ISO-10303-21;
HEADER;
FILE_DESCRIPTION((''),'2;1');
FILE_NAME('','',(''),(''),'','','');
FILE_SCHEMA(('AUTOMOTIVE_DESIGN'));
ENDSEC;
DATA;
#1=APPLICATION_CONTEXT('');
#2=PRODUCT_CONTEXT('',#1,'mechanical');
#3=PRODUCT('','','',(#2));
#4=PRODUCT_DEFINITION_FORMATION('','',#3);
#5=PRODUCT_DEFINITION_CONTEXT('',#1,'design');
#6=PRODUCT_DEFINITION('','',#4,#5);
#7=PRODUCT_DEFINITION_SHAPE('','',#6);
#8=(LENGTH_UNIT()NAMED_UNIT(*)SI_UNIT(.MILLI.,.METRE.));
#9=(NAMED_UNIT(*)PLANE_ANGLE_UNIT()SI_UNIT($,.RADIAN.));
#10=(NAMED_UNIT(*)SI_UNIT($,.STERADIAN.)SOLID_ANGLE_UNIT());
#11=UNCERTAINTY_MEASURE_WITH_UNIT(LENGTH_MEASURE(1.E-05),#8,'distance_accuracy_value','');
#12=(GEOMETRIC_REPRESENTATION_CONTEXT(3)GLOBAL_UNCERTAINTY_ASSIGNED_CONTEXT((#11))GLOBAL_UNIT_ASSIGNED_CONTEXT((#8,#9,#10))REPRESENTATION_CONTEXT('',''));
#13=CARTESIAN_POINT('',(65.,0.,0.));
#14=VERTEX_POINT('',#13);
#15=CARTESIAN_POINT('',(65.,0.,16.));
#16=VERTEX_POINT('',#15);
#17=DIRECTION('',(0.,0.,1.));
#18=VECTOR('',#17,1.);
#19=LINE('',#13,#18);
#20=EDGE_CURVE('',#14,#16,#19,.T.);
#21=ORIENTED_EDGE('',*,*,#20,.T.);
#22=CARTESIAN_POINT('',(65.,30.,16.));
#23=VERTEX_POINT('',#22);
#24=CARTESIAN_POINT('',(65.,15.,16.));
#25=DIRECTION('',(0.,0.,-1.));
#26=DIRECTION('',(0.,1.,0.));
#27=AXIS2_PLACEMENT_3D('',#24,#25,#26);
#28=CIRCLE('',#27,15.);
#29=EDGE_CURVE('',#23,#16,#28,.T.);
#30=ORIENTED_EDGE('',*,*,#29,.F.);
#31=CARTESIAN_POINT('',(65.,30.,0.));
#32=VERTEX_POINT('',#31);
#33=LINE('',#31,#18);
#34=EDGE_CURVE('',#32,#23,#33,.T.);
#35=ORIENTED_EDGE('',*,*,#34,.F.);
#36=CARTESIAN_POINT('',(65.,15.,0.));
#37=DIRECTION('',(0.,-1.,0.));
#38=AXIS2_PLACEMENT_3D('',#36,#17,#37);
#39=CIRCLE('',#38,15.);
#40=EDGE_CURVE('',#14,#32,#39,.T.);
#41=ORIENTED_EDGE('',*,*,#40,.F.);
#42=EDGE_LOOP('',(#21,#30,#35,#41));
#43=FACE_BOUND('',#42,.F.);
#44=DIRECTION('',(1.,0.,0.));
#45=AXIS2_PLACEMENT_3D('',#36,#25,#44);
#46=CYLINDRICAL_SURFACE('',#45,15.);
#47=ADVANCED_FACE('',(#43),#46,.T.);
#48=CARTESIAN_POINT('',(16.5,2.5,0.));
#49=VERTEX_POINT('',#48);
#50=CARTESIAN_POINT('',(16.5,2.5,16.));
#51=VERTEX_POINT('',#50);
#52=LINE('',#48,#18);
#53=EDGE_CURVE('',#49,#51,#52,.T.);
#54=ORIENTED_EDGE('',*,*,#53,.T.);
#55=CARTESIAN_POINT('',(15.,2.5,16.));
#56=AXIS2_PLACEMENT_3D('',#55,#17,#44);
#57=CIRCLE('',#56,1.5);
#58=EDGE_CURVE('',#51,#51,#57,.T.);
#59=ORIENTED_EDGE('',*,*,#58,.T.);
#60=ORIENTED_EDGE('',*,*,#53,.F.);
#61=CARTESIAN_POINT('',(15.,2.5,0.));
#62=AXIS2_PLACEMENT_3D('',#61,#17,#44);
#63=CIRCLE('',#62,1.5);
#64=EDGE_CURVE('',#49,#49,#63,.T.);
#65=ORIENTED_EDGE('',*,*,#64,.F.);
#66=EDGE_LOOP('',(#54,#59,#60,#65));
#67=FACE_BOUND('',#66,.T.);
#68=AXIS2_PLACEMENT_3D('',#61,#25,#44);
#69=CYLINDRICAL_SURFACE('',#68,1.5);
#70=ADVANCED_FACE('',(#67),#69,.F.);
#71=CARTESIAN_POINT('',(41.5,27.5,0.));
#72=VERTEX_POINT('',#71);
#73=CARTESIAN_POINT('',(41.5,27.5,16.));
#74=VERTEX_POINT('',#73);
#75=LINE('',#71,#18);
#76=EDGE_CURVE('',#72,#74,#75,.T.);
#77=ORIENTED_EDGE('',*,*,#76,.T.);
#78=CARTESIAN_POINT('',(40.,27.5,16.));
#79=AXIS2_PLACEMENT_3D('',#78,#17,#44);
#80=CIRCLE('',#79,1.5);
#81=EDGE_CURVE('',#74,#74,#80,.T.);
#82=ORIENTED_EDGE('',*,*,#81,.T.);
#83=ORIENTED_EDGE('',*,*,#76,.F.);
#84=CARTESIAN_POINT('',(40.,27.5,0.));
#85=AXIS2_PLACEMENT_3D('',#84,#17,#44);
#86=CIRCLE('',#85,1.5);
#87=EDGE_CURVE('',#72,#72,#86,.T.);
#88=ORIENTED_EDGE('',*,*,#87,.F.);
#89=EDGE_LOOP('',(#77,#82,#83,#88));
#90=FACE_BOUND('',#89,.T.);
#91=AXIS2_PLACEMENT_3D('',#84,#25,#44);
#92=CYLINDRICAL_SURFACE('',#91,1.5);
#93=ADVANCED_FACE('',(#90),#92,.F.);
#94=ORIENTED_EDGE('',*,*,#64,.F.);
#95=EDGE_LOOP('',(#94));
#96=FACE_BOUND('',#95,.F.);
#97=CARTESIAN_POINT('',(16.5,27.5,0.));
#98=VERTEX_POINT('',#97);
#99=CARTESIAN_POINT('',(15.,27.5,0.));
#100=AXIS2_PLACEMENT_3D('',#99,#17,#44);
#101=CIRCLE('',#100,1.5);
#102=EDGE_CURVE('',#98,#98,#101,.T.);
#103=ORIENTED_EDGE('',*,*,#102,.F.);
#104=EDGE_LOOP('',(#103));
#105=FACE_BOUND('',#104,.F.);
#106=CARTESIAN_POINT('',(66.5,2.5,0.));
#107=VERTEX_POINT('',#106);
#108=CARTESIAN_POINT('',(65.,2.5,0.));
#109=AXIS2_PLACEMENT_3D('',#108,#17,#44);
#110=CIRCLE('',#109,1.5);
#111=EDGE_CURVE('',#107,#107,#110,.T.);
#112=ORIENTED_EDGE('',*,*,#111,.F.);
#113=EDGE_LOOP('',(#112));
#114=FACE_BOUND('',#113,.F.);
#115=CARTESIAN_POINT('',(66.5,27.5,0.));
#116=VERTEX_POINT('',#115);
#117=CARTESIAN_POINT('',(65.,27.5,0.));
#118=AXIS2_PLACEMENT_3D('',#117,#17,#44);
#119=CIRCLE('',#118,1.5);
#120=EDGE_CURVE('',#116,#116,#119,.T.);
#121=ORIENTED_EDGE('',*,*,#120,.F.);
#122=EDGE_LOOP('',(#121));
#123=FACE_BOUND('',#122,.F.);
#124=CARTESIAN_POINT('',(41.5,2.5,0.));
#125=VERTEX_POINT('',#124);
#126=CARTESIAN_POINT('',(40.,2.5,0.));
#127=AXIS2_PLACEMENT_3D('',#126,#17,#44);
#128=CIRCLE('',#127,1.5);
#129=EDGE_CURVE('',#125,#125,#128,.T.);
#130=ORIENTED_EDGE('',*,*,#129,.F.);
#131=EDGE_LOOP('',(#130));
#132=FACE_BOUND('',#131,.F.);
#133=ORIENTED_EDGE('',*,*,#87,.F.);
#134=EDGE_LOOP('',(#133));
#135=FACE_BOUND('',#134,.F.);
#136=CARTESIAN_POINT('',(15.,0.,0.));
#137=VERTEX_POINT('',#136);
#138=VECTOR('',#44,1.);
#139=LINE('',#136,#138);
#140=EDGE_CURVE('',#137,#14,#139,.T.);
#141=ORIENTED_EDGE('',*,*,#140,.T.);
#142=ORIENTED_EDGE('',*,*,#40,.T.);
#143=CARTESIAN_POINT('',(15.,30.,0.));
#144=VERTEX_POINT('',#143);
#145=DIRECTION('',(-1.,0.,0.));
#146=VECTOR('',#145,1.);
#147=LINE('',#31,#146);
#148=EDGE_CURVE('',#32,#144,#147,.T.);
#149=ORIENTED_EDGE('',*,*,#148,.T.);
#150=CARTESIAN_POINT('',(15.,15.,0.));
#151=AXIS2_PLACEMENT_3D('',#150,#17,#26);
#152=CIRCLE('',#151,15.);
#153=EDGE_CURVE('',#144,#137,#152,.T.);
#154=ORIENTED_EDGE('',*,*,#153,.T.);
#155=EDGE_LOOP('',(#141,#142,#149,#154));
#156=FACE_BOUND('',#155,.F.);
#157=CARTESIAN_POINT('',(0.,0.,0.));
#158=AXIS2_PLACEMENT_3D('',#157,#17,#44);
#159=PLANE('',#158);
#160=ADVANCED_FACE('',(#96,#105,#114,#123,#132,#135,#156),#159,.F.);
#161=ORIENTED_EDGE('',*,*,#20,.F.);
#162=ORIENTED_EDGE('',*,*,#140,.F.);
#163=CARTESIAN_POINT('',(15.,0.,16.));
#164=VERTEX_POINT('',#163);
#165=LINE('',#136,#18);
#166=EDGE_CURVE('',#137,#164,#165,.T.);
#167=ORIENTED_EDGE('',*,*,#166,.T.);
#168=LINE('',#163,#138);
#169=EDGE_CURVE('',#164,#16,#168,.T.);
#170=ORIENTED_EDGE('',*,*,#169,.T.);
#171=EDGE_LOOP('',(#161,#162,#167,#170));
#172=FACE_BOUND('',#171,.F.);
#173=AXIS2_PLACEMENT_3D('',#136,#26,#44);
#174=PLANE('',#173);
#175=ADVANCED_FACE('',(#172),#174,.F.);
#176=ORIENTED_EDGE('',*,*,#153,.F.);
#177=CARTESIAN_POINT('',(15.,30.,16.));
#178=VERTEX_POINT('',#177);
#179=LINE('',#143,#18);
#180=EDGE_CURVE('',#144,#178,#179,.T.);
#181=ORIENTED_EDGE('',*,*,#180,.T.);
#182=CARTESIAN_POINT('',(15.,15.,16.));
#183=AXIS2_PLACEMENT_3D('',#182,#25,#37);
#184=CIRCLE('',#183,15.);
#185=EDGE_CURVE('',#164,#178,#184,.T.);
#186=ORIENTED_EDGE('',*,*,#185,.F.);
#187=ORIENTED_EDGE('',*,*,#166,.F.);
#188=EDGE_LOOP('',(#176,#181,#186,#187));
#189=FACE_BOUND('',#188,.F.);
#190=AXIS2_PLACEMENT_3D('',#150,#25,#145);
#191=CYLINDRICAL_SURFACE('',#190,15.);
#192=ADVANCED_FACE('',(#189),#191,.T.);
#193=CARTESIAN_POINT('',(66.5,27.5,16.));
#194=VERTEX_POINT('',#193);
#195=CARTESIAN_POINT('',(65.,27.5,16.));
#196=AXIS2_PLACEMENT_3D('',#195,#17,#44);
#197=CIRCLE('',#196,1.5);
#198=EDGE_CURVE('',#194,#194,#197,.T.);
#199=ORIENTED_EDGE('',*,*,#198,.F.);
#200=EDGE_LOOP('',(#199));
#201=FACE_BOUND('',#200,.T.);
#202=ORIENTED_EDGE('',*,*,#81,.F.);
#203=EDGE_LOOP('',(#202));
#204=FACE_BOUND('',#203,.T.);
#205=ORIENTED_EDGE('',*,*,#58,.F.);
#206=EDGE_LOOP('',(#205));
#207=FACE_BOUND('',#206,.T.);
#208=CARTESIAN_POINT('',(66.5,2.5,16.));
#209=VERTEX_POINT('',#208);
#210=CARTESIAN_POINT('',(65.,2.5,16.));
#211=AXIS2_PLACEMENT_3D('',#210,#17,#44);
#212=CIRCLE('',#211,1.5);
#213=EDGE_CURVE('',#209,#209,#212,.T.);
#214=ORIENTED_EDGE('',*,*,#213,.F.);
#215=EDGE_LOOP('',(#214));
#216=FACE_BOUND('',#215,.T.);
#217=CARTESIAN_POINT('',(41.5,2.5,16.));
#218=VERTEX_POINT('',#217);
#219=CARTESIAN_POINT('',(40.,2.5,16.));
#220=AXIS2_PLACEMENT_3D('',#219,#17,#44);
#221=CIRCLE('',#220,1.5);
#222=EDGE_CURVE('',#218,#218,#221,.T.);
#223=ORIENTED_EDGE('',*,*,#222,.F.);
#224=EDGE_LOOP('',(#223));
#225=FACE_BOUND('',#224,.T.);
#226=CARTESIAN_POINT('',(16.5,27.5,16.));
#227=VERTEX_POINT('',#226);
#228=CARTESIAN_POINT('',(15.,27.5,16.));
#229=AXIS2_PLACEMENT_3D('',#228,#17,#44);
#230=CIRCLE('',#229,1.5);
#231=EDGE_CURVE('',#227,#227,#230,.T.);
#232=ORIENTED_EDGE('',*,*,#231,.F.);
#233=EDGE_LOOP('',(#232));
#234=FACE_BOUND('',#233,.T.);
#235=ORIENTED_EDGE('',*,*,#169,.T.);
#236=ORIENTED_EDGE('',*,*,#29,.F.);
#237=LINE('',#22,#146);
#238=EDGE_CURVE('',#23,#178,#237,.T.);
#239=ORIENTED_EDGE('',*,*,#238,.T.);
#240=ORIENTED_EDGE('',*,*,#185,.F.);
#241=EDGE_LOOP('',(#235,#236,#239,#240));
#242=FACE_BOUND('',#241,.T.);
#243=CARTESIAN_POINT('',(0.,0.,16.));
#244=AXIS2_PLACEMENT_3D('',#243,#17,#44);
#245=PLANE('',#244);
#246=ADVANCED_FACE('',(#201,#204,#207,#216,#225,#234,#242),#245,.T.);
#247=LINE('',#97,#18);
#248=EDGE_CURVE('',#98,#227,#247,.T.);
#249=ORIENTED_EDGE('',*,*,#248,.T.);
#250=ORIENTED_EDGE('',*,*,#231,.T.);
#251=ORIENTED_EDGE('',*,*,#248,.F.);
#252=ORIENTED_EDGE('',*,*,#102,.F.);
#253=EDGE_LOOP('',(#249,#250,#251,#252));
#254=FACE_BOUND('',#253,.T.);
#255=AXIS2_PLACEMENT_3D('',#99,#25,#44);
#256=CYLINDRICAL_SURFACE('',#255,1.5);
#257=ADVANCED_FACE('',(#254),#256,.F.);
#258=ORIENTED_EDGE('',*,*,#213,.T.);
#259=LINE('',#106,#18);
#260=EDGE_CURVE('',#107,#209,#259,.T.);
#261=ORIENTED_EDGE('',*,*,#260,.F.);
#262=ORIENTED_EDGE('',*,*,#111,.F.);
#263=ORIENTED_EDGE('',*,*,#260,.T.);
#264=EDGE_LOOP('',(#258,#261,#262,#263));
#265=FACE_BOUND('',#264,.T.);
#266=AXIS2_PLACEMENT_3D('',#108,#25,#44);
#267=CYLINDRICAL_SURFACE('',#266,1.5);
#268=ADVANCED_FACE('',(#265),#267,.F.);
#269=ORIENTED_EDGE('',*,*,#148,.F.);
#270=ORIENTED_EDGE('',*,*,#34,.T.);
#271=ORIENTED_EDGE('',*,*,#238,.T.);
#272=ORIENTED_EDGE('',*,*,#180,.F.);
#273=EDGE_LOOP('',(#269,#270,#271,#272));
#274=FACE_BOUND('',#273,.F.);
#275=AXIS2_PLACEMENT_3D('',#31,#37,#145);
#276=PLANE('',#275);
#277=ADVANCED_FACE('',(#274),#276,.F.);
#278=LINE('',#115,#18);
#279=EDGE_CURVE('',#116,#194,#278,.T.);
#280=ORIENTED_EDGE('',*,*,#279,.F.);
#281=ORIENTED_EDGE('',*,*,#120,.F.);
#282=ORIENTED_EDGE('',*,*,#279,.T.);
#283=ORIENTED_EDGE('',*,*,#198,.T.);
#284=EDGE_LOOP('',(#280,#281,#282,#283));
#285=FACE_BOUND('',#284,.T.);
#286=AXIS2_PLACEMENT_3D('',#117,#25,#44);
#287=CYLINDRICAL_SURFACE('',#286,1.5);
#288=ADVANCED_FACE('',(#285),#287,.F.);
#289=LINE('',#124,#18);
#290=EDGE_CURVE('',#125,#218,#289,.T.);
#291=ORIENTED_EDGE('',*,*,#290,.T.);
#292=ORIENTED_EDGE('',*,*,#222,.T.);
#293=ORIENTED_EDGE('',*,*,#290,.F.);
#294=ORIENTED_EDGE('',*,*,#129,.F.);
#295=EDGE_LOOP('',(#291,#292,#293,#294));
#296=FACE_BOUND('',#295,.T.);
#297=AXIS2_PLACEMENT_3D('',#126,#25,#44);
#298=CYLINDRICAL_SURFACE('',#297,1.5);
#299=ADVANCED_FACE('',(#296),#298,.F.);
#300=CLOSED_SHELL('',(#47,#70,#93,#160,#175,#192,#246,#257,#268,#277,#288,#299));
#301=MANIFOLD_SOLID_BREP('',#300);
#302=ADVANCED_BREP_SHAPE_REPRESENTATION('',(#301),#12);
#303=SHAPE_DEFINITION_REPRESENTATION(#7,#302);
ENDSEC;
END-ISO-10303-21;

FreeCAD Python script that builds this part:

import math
import FreeCAD as App
import Part
import Sketcher
from FreeCAD import Vector


def faces_at(feature, points):
    """Names of the faces that lie closest to the given points."""
    faces = feature.Shape.Faces
    near = lambda p: min(range(len(faces)), key=lambda i: faces[i].distToShape(Part.Vertex(*p))[0])
    return sorted({f"Face{near(p) + 1}" for p in points})

doc = App.newDocument("Part")
body = doc.addObject("PartDesign::Body", "Body")

# Sketch on XY plane
sketch1 = body.newObject("Sketcher::SketchObject", "Sketch")
sketch1.AttachmentSupport = (doc.getObject("XY_Plane"), [""])
sketch1.MapMode = "FlatFace"
sketch1.addGeometry(Part.ArcOfCircle(Part.Circle(Vector(15, 15, 0), Vector(0, 0, 1), 15), math.radians(90), math.radians(270)), False)
sketch1.addGeometry(Part.LineSegment(Vector(15, 0, 0), Vector(65, 0, 0)), False)
sketch1.addGeometry(Part.ArcOfCircle(Part.Circle(Vector(65, 15, 0), Vector(0, 0, 1), 15), math.radians(-90), math.radians(90)), False)
sketch1.addGeometry(Part.LineSegment(Vector(65, 30, 0), Vector(15, 30, 0)), False)
sketch1.addGeometry(Part.Circle(Vector(15, 2.5, 0), Vector(0, 0, 1), 1.5), False)
sketch1.addGeometry(Part.Circle(Vector(40, 2.5, 0), Vector(0, 0, 1), 1.5), False)
sketch1.addGeometry(Part.Circle(Vector(65, 2.5, 0), Vector(0, 0, 1), 1.5), False)
sketch1.addGeometry(Part.Circle(Vector(15, 27.5, 0), Vector(0, 0, 1), 1.5), False)
sketch1.addGeometry(Part.Circle(Vector(40, 27.5, 0), Vector(0, 0, 1), 1.5), False)
sketch1.addGeometry(Part.Circle(Vector(65, 27.5, 0), Vector(0, 0, 1), 1.5), False)
sketch1.addConstraint(Sketcher.Constraint("Tangent", 0, 2, 1, 1))
sketch1.addConstraint(Sketcher.Constraint("Tangent", 1, 2, 2, 1))
sketch1.addConstraint(Sketcher.Constraint("Tangent", 2, 2, 3, 1))
sketch1.addConstraint(Sketcher.Constraint("Tangent", 3, 2, 0, 1))
sketch1.addConstraint(Sketcher.Constraint("Horizontal", 1))
sketch1.addConstraint(Sketcher.Constraint("Horizontal", 3))
sketch1.addConstraint(Sketcher.Constraint("Equal", 4, 5))
sketch1.addConstraint(Sketcher.Constraint("Equal", 5, 6))
sketch1.addConstraint(Sketcher.Constraint("Equal", 6, 7))
sketch1.addConstraint(Sketcher.Constraint("Equal", 7, 8))
sketch1.addConstraint(Sketcher.Constraint("Equal", 8, 9))
sketch1.addConstraint(Sketcher.Constraint("PointOnObject", 0, 2, -1))
sketch1.addConstraint(Sketcher.Constraint("Horizontal", 4, 3, 5, 3))
sketch1.addConstraint(Sketcher.Constraint("Horizontal", 5, 3, 6, 3))
sketch1.addConstraint(Sketcher.Constraint("Horizontal", 7, 3, 8, 3))
sketch1.addConstraint(Sketcher.Constraint("Horizontal", 8, 3, 9, 3))
sketch1.addConstraint(Sketcher.Constraint("Vertical", 0, 3, 4, 3))
sketch1.addConstraint(Sketcher.Constraint("Vertical", 2, 3, 6, 3))
sketch1.addConstraint(Sketcher.Constraint("Vertical", 4, 3, 7, 3))
sketch1.addConstraint(Sketcher.Constraint("Vertical", 5, 3, 8, 3))
sketch1.addConstraint(Sketcher.Constraint("Vertical", 6, 3, 9, 3))
sketch1.addConstraint(Sketcher.Constraint("Diameter", 4, 3.0))
sketch1.addConstraint(Sketcher.Constraint("Radius", 0, 15.0))
sketch1.addConstraint(Sketcher.Constraint("DistanceX", -1, 1, 0, 3, 15.0))
sketch1.addConstraint(Sketcher.Constraint("DistanceX", 4, 3, 5, 3, 25.0))
sketch1.addConstraint(Sketcher.Constraint("DistanceX", 5, 3, 2, 3, 25.0))
sketch1.addConstraint(Sketcher.Constraint("DistanceY", 4, 3, 7, 3, 25.0))
sketch1.addConstraint(Sketcher.Constraint("DistanceY", 4, 3, 0, 3, 12.5))
pad1 = body.newObject("PartDesign::Pad", "Pad")
pad1.Profile = sketch1
pad1.Length = 16
doc.recompute()

thickness = body.newObject("PartDesign::Thickness", "Thickness")
thickness.Base = (pad1, faces_at(pad1, [(23.7, 18.827, 16)]))
thickness.Value = 2
thickness.Reversed = True
thickness.Join = "Intersection"

# Sketch on XY plane
sketch2 = body.newObject("Sketcher::SketchObject", "Sketch001")
sketch2.AttachmentSupport = (doc.getObject("XY_Plane"), [""])
sketch2.MapMode = "FlatFace"
sketch2.addGeometry(Part.Circle(Vector(65, 27.5, 0), Vector(0, 0, 1), 2), False)
sketch2.addGeometry(Part.Circle(Vector(40, 27.5, 0), Vector(0, 0, 1), 2), False)
sketch2.addGeometry(Part.Circle(Vector(15, 27.5, 0), Vector(0, 0, 1), 2), False)
sketch2.addGeometry(Part.Circle(Vector(15, 2.5, 0), Vector(0, 0, 1), 2), False)
sketch2.addGeometry(Part.Circle(Vector(40, 2.5, 0), Vector(0, 0, 1), 2), False)
sketch2.addGeometry(Part.Circle(Vector(65, 2.5, 0), Vector(0, 0, 1), 2), False)
sketch2.addConstraint(Sketcher.Constraint("Equal", 0, 1))
sketch2.addConstraint(Sketcher.Constraint("Equal", 1, 2))
sketch2.addConstraint(Sketcher.Constraint("Equal", 2, 3))
sketch2.addConstraint(Sketcher.Constraint("Equal", 3, 4))
sketch2.addConstraint(Sketcher.Constraint("Equal", 4, 5))
sketch2.addConstraint(Sketcher.Constraint("Horizontal", 0, 3, 1, 3))
sketch2.addConstraint(Sketcher.Constraint("Horizontal", 1, 3, 2, 3))
sketch2.addConstraint(Sketcher.Constraint("Horizontal", 3, 3, 4, 3))
sketch2.addConstraint(Sketcher.Constraint("Horizontal", 4, 3, 5, 3))
sketch2.addConstraint(Sketcher.Constraint("Vertical", 2, 3, 3, 3))
sketch2.addConstraint(Sketcher.Constraint("Vertical", 1, 3, 4, 3))
sketch2.addConstraint(Sketcher.Constraint("Vertical", 0, 3, 5, 3))
sketch2.addConstraint(Sketcher.Constraint("Diameter", 0, 4.0))
sketch2.addConstraint(Sketcher.Constraint("DistanceX", -1, 1, 0, 3, 65.0))
sketch2.addConstraint(Sketcher.Constraint("DistanceX", -1, 1, 1, 3, 40.0))
sketch2.addConstraint(Sketcher.Constraint("DistanceX", -1, 1, 2, 3, 15.0))
sketch2.addConstraint(Sketcher.Constraint("DistanceY", 3, 3, 2, 3, 25.0))
sketch2.addConstraint(Sketcher.Constraint("DistanceY", -1, 1, 0, 3, 27.5))
doc.recompute()
hole = body.newObject("PartDesign::Hole", "Hole")
hole.Profile = sketch2
hole.ThreadType = "None"
hole.Diameter = 4
hole.DepthType = "Dimension"
hole.Depth = 1
hole.DrillPoint = "Flat"
hole.HoleCutType = "Countersink"
hole.HoleCutDiameter = 4.4
hole.HoleCutCountersinkAngle = 90

doc.recompute()
